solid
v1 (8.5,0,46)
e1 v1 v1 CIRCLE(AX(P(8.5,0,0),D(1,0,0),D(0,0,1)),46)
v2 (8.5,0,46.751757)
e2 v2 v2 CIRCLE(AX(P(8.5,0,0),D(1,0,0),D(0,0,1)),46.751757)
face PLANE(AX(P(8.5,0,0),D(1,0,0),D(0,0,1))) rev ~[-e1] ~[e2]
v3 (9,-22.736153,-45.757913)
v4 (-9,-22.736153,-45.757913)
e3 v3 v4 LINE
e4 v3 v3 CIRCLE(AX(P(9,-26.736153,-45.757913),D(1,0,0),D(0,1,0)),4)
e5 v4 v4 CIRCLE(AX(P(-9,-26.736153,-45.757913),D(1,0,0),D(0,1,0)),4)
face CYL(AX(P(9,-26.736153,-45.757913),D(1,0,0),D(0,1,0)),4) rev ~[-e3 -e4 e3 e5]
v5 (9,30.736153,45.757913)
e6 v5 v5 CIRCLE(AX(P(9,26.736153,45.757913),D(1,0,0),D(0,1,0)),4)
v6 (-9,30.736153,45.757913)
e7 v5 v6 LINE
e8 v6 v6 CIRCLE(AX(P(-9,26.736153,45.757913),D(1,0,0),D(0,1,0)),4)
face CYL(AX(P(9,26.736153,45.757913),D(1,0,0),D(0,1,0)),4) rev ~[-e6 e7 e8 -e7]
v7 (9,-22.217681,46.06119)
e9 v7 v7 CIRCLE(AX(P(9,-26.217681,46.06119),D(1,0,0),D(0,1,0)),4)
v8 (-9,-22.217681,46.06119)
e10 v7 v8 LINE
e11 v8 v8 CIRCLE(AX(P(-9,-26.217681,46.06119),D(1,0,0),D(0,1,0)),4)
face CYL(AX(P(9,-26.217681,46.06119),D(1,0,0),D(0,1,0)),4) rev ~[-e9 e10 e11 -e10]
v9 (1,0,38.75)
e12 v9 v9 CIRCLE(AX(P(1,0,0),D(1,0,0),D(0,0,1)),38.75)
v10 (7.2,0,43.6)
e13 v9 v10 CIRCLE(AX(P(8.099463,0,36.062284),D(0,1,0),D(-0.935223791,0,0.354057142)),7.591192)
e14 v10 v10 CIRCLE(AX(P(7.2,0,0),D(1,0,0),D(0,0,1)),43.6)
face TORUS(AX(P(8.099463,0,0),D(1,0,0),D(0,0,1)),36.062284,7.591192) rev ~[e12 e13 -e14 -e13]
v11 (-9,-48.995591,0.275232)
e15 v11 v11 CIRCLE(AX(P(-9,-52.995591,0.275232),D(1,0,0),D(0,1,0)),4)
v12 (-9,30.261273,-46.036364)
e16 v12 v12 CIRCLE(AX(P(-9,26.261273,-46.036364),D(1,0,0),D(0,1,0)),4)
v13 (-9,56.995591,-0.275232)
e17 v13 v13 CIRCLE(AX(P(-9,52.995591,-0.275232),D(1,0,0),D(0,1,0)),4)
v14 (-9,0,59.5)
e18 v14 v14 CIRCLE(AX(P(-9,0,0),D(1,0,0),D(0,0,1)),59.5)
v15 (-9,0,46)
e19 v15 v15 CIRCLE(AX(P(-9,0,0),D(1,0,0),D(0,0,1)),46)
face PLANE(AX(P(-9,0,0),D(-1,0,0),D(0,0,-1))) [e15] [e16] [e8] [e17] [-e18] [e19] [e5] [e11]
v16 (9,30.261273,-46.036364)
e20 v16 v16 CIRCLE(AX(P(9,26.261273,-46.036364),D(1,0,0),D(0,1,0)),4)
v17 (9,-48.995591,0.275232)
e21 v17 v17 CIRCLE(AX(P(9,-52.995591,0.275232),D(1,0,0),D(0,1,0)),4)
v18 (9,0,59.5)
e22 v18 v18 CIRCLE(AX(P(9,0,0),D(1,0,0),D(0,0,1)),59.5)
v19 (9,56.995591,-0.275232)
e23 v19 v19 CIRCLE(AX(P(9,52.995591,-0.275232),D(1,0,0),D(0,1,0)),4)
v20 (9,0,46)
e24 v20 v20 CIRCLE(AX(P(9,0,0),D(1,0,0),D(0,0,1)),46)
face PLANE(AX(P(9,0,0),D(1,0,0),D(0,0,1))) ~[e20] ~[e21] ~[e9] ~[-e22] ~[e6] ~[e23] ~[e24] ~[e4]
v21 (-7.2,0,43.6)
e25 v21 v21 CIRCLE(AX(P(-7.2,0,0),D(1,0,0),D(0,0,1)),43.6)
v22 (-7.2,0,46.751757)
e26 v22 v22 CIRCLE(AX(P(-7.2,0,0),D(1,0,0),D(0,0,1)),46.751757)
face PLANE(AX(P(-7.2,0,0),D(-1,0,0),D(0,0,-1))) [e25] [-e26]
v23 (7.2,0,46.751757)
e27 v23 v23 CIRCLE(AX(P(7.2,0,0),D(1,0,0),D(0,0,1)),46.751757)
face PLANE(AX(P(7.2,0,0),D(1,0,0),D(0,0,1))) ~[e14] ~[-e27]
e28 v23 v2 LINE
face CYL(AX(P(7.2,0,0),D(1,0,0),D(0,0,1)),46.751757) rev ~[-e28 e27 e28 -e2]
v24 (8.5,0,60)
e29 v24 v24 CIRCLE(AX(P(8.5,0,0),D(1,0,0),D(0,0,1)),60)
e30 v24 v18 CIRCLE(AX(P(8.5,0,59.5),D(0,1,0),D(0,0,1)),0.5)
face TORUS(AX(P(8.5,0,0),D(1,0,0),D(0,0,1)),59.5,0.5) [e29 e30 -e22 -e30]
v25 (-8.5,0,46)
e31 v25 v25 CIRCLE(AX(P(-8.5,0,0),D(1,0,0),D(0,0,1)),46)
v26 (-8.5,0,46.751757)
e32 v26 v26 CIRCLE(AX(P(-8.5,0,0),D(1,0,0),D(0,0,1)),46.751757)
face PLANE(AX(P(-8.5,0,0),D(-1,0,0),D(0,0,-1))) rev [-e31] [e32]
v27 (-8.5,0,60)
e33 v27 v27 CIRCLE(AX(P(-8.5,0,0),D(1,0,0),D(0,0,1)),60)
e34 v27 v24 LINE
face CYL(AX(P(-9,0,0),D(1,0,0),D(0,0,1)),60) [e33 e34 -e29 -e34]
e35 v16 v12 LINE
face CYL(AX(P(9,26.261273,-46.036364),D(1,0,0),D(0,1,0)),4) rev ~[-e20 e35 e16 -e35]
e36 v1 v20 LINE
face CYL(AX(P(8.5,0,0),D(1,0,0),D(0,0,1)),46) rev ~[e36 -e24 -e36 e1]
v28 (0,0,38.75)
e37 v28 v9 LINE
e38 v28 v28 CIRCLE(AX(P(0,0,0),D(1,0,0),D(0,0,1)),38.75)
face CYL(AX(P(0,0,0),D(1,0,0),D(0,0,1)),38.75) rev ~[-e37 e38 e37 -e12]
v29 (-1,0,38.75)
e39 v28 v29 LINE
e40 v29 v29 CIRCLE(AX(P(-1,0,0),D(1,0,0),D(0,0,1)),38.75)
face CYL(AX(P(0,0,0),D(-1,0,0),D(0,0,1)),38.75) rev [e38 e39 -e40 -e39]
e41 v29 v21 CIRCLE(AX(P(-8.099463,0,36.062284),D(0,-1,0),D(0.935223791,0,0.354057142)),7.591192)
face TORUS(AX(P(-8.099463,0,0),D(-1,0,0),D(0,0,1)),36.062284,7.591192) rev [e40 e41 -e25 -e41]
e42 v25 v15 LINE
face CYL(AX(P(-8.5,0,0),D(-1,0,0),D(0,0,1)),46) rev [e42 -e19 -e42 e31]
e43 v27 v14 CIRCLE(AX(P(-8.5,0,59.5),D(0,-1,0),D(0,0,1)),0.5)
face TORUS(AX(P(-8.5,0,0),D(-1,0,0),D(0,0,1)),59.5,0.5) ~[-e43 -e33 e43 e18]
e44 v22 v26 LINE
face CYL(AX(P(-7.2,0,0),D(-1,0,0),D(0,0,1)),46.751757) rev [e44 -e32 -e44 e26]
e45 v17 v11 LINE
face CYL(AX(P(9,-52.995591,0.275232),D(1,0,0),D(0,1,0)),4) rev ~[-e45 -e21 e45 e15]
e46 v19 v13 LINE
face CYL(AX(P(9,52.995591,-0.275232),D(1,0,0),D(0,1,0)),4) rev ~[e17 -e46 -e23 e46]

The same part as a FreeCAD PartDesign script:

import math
import FreeCAD as App
import Part
import Sketcher
from FreeCAD import Vector
Q = App.Units.Quantity


def edges_at(feature, points):
    """Names of the edges that pass closest to the given points."""
    edges = feature.Shape.Edges
    near = lambda p: min(range(len(edges)), key=lambda i: edges[i].distToShape(Part.Vertex(*p))[0])
    return sorted({f"Edge{near(p) + 1}" for p in points})

doc = App.newDocument("Part")
body = doc.addObject("PartDesign::Body", "Body")

# Sketch on XZ plane
sketch1 = doc.addObject("Sketcher::SketchObject", "Sketch")
body.addObject(sketch1)
sketch1.AttachmentSupport = (doc.XZ_Plane, [""])
sketch1.MapMode = "FlatFace"
sketch1.addGeometry(Part.LineSegment(Vector(9, 60, 0), Vector(0, 60, 0)), False)
sketch1.addGeometry(Part.LineSegment(Vector(0, 60, 0), Vector(0, 38.8, 0)), False)
sketch1.addGeometry(Part.LineSegment(Vector(0, 38.8, 0), Vector(1, 38.8, 0)), False)
sketch1.addGeometry(Part.ArcOfCircle(Part.Circle(Vector(8.1, 36.1, 0), Vector(0, 0, 1), 7.6), math.radians(97), math.radians(159)), False)
sketch1.addGeometry(Part.LineSegment(Vector(7.2, 43.6, 0), Vector(7.2, 46.8, 0)), False)
sketch1.addGeometry(Part.LineSegment(Vector(7.2, 46.8, 0), Vector(8.5, 46.8, 0)), False)
sketch1.addGeometry(Part.LineSegment(Vector(8.5, 46.8, 0), Vector(8.5, 46, 0)), False)
sketch1.addGeometry(Part.LineSegment(Vector(8.5, 46, 0), Vector(9, 46, 0)), False)
sketch1.addGeometry(Part.LineSegment(Vector(9, 46, 0), Vector(9, 60, 0)), False)
sketch1.addConstraint(Sketcher.Constraint("Coincident", 0, 2, 1, 1))
sketch1.addConstraint(Sketcher.Constraint("Coincident", 1, 2, 2, 1))
sketch1.addConstraint(Sketcher.Constraint("Coincident", 2, 2, 3, 2))
sketch1.addConstraint(Sketcher.Constraint("Coincident", 3, 1, 4, 1))
sketch1.addConstraint(Sketcher.Constraint("Coincident", 4, 2, 5, 1))
sketch1.addConstraint(Sketcher.Constraint("Coincident", 5, 2, 6, 1))
sketch1.addConstraint(Sketcher.Constraint("Coincident", 6, 2, 7, 1))
sketch1.addConstraint(Sketcher.Constraint("Coincident", 7, 2, 8, 1))
sketch1.addConstraint(Sketcher.Constraint("Coincident", 8, 2, 0, 1))
sketch1.addConstraint(Sketcher.Constraint("Horizontal", 0))
sketch1.addConstraint(Sketcher.Constraint("Vertical", 1))
sketch1.addConstraint(Sketcher.Constraint("Horizontal", 2))
sketch1.addConstraint(Sketcher.Constraint("Vertical", 4))
sketch1.addConstraint(Sketcher.Constraint("Horizontal", 5))
sketch1.addConstraint(Sketcher.Constraint("Vertical", 6))
sketch1.addConstraint(Sketcher.Constraint("Horizontal", 7))
sketch1.addConstraint(Sketcher.Constraint("Vertical", 8))
sketch1.addConstraint(Sketcher.Constraint("PointOnObject", 0, 2, -2))
sketch1.addConstraint(Sketcher.Constraint("DistanceX", 0, 2, 0, 1, Q("9 mm")))
sketch1.addConstraint(Sketcher.Constraint("DistanceX", 2, 1, 2, 2, Q("1 mm")))
sketch1.addConstraint(Sketcher.Constraint("DistanceY", 8, 1, 8, 2, Q("14 mm")))
sketch1.addConstraint(Sketcher.Constraint("DistanceX", 5, 1, 5, 2, Q("1.3 mm")))
sketch1.addConstraint(Sketcher.Constraint("DistanceX", 7, 1, 7, 2, Q("0.5 mm")))
sketch1.addConstraint(Sketcher.Constraint("DistanceY", -1, 1, 0, 2, Q("60 mm")))
sketch1.addConstraint(Sketcher.Constraint("DistanceY", 1, 2, 1, 1, Q("21.25 mm")))
sketch1.addConstraint(Sketcher.Constraint("DistanceY", -1, 1, 3, 1, Q("43.6 mm")))
sketch1.addConstraint(Sketcher.Constraint("Radius", 3, Q("7.591192 mm")))
sketch1.addConstraint(Sketcher.Constraint("DistanceY", 4, 1, 4, 2, Q("3.151757 mm")))
revolution = doc.addObject("PartDesign::Revolution", "Revolution")
body.addObject(revolution)
revolution.Profile = sketch1
revolution.ReferenceAxis = (sketch1, ["H_Axis"])
revolution.Angle = 360
doc.recompute()

fillet = doc.addObject("PartDesign::Fillet", "Fillet")
body.addObject(fillet)
fillet.Base = (revolution, edges_at(revolution, [(9, 0, -60)]))
fillet.Radius = 0.5
body2 = doc.addObject("PartDesign::Body", "Body001")
doc.recompute()

body2.BaseFeature = body
doc.recompute()

mirroring = doc.addObject("Part::Mirroring", "Mirroring")
mirroring.Source = body
mirroring.Base = Vector(0, 0, 0)
mirroring.Normal = Vector(-1, 0, 0)
body3 = doc.addObject("PartDesign::Body", "Body002")
body3.BaseFeature = mirroring
boolean = doc.addObject("PartDesign::Boolean", "Boolean")
body2.addObject(boolean)
boolean.Type = "Fuse"
boolean.addObjects([body3])
doc.recompute()

# Sketch on YZ plane
sketch2 = doc.addObject("Sketcher::SketchObject", "Sketch001")
body2.addObject(sketch2)
sketch2.AttachmentSupport = (doc.getObject("YZ_Plane001"), [""])
sketch2.MapMode = "FlatFace"
sketch2.AttachmentOffset = App.Placement(Vector(0, 0, 9), App.Rotation())
sketch2.addGeometry(Part.Circle(Vector(-53, 0.3, 0), Vector(0, 0, 1), 4), False)
sketch2.addGeometry(Part.Circle(Vector(-26.2, 46.1, 0), Vector(0, 0, 1), 4), False)
sketch2.addGeometry(Part.Circle(Vector(26.7, 45.8, 0), Vector(0, 0, 1), 4), False)
sketch2.addGeometry(Part.Circle(Vector(53, -0.3, 0), Vector(0, 0, 1), 4), False)
sketch2.addGeometry(Part.Circle(Vector(26.3, -46, 0), Vector(0, 0, 1), 4), False)
sketch2.addGeometry(Part.Circle(Vector(-26.7, -45.8, 0), Vector(0, 0, 1), 4), False)
sketch2.addConstraint(Sketcher.Constraint("Equal", 0, 1))
sketch2.addConstraint(Sketcher.Constraint("Equal", 1, 2))
sketch2.addConstraint(Sketcher.Constraint("Equal", 2, 3))
sketch2.addConstraint(Sketcher.Constraint("Equal", 3, 4))
sketch2.addConstraint(Sketcher.Constraint("Equal", 4, 5))
sketch2.addConstraint(Sketcher.Constraint("Symmetric", 0, 3, 3, 3, -1, 1))
sketch2.addConstraint(Sketcher.Constraint("Symmetric", 2, 3, 5, 3, -1, 1))
sketch2.addConstraint(Sketcher.Constraint("Diameter", 0, Q("8 mm")))
sketch2.addConstraint(Sketcher.Constraint("DistanceX", 0, 3, -1, 1, Q("52.995591 mm")))
sketch2.addConstraint(Sketcher.Constraint("DistanceX", 1, 3, -1, 1, Q("26.217681 mm")))
sketch2.addConstraint(Sketcher.Constraint("DistanceY", -1, 1, 1, 3, Q("46.06119 mm")))
sketch2.addConstraint(Sketcher.Constraint("DistanceY", 0, 3, 2, 3, Q("45.482681 mm")))
sketch2.addConstraint(Sketcher.Constraint("DistanceY", 4, 3, 3, 3, Q("45.761132 mm")))
sketch2.addConstraint(Sketcher.Constraint("DistanceX", 4, 3, 2, 3, Q("0.47488 mm")))
sketch2.addConstraint(Sketcher.Constraint("DistanceY", -1, 1, 0, 3, Q("0.275232 mm")))
sketch2.addConstraint(Sketcher.Constraint("DistanceX", -1, 1, 2, 3, Q("26.736153 mm")))
pocket1 = doc.addObject("PartDesign::Pocket", "Pocket")
body2.addObject(pocket1)
pocket1.Profile = sketch2
pocket1.Length = 18
mirroring.Visibility = False

doc.recompute()
